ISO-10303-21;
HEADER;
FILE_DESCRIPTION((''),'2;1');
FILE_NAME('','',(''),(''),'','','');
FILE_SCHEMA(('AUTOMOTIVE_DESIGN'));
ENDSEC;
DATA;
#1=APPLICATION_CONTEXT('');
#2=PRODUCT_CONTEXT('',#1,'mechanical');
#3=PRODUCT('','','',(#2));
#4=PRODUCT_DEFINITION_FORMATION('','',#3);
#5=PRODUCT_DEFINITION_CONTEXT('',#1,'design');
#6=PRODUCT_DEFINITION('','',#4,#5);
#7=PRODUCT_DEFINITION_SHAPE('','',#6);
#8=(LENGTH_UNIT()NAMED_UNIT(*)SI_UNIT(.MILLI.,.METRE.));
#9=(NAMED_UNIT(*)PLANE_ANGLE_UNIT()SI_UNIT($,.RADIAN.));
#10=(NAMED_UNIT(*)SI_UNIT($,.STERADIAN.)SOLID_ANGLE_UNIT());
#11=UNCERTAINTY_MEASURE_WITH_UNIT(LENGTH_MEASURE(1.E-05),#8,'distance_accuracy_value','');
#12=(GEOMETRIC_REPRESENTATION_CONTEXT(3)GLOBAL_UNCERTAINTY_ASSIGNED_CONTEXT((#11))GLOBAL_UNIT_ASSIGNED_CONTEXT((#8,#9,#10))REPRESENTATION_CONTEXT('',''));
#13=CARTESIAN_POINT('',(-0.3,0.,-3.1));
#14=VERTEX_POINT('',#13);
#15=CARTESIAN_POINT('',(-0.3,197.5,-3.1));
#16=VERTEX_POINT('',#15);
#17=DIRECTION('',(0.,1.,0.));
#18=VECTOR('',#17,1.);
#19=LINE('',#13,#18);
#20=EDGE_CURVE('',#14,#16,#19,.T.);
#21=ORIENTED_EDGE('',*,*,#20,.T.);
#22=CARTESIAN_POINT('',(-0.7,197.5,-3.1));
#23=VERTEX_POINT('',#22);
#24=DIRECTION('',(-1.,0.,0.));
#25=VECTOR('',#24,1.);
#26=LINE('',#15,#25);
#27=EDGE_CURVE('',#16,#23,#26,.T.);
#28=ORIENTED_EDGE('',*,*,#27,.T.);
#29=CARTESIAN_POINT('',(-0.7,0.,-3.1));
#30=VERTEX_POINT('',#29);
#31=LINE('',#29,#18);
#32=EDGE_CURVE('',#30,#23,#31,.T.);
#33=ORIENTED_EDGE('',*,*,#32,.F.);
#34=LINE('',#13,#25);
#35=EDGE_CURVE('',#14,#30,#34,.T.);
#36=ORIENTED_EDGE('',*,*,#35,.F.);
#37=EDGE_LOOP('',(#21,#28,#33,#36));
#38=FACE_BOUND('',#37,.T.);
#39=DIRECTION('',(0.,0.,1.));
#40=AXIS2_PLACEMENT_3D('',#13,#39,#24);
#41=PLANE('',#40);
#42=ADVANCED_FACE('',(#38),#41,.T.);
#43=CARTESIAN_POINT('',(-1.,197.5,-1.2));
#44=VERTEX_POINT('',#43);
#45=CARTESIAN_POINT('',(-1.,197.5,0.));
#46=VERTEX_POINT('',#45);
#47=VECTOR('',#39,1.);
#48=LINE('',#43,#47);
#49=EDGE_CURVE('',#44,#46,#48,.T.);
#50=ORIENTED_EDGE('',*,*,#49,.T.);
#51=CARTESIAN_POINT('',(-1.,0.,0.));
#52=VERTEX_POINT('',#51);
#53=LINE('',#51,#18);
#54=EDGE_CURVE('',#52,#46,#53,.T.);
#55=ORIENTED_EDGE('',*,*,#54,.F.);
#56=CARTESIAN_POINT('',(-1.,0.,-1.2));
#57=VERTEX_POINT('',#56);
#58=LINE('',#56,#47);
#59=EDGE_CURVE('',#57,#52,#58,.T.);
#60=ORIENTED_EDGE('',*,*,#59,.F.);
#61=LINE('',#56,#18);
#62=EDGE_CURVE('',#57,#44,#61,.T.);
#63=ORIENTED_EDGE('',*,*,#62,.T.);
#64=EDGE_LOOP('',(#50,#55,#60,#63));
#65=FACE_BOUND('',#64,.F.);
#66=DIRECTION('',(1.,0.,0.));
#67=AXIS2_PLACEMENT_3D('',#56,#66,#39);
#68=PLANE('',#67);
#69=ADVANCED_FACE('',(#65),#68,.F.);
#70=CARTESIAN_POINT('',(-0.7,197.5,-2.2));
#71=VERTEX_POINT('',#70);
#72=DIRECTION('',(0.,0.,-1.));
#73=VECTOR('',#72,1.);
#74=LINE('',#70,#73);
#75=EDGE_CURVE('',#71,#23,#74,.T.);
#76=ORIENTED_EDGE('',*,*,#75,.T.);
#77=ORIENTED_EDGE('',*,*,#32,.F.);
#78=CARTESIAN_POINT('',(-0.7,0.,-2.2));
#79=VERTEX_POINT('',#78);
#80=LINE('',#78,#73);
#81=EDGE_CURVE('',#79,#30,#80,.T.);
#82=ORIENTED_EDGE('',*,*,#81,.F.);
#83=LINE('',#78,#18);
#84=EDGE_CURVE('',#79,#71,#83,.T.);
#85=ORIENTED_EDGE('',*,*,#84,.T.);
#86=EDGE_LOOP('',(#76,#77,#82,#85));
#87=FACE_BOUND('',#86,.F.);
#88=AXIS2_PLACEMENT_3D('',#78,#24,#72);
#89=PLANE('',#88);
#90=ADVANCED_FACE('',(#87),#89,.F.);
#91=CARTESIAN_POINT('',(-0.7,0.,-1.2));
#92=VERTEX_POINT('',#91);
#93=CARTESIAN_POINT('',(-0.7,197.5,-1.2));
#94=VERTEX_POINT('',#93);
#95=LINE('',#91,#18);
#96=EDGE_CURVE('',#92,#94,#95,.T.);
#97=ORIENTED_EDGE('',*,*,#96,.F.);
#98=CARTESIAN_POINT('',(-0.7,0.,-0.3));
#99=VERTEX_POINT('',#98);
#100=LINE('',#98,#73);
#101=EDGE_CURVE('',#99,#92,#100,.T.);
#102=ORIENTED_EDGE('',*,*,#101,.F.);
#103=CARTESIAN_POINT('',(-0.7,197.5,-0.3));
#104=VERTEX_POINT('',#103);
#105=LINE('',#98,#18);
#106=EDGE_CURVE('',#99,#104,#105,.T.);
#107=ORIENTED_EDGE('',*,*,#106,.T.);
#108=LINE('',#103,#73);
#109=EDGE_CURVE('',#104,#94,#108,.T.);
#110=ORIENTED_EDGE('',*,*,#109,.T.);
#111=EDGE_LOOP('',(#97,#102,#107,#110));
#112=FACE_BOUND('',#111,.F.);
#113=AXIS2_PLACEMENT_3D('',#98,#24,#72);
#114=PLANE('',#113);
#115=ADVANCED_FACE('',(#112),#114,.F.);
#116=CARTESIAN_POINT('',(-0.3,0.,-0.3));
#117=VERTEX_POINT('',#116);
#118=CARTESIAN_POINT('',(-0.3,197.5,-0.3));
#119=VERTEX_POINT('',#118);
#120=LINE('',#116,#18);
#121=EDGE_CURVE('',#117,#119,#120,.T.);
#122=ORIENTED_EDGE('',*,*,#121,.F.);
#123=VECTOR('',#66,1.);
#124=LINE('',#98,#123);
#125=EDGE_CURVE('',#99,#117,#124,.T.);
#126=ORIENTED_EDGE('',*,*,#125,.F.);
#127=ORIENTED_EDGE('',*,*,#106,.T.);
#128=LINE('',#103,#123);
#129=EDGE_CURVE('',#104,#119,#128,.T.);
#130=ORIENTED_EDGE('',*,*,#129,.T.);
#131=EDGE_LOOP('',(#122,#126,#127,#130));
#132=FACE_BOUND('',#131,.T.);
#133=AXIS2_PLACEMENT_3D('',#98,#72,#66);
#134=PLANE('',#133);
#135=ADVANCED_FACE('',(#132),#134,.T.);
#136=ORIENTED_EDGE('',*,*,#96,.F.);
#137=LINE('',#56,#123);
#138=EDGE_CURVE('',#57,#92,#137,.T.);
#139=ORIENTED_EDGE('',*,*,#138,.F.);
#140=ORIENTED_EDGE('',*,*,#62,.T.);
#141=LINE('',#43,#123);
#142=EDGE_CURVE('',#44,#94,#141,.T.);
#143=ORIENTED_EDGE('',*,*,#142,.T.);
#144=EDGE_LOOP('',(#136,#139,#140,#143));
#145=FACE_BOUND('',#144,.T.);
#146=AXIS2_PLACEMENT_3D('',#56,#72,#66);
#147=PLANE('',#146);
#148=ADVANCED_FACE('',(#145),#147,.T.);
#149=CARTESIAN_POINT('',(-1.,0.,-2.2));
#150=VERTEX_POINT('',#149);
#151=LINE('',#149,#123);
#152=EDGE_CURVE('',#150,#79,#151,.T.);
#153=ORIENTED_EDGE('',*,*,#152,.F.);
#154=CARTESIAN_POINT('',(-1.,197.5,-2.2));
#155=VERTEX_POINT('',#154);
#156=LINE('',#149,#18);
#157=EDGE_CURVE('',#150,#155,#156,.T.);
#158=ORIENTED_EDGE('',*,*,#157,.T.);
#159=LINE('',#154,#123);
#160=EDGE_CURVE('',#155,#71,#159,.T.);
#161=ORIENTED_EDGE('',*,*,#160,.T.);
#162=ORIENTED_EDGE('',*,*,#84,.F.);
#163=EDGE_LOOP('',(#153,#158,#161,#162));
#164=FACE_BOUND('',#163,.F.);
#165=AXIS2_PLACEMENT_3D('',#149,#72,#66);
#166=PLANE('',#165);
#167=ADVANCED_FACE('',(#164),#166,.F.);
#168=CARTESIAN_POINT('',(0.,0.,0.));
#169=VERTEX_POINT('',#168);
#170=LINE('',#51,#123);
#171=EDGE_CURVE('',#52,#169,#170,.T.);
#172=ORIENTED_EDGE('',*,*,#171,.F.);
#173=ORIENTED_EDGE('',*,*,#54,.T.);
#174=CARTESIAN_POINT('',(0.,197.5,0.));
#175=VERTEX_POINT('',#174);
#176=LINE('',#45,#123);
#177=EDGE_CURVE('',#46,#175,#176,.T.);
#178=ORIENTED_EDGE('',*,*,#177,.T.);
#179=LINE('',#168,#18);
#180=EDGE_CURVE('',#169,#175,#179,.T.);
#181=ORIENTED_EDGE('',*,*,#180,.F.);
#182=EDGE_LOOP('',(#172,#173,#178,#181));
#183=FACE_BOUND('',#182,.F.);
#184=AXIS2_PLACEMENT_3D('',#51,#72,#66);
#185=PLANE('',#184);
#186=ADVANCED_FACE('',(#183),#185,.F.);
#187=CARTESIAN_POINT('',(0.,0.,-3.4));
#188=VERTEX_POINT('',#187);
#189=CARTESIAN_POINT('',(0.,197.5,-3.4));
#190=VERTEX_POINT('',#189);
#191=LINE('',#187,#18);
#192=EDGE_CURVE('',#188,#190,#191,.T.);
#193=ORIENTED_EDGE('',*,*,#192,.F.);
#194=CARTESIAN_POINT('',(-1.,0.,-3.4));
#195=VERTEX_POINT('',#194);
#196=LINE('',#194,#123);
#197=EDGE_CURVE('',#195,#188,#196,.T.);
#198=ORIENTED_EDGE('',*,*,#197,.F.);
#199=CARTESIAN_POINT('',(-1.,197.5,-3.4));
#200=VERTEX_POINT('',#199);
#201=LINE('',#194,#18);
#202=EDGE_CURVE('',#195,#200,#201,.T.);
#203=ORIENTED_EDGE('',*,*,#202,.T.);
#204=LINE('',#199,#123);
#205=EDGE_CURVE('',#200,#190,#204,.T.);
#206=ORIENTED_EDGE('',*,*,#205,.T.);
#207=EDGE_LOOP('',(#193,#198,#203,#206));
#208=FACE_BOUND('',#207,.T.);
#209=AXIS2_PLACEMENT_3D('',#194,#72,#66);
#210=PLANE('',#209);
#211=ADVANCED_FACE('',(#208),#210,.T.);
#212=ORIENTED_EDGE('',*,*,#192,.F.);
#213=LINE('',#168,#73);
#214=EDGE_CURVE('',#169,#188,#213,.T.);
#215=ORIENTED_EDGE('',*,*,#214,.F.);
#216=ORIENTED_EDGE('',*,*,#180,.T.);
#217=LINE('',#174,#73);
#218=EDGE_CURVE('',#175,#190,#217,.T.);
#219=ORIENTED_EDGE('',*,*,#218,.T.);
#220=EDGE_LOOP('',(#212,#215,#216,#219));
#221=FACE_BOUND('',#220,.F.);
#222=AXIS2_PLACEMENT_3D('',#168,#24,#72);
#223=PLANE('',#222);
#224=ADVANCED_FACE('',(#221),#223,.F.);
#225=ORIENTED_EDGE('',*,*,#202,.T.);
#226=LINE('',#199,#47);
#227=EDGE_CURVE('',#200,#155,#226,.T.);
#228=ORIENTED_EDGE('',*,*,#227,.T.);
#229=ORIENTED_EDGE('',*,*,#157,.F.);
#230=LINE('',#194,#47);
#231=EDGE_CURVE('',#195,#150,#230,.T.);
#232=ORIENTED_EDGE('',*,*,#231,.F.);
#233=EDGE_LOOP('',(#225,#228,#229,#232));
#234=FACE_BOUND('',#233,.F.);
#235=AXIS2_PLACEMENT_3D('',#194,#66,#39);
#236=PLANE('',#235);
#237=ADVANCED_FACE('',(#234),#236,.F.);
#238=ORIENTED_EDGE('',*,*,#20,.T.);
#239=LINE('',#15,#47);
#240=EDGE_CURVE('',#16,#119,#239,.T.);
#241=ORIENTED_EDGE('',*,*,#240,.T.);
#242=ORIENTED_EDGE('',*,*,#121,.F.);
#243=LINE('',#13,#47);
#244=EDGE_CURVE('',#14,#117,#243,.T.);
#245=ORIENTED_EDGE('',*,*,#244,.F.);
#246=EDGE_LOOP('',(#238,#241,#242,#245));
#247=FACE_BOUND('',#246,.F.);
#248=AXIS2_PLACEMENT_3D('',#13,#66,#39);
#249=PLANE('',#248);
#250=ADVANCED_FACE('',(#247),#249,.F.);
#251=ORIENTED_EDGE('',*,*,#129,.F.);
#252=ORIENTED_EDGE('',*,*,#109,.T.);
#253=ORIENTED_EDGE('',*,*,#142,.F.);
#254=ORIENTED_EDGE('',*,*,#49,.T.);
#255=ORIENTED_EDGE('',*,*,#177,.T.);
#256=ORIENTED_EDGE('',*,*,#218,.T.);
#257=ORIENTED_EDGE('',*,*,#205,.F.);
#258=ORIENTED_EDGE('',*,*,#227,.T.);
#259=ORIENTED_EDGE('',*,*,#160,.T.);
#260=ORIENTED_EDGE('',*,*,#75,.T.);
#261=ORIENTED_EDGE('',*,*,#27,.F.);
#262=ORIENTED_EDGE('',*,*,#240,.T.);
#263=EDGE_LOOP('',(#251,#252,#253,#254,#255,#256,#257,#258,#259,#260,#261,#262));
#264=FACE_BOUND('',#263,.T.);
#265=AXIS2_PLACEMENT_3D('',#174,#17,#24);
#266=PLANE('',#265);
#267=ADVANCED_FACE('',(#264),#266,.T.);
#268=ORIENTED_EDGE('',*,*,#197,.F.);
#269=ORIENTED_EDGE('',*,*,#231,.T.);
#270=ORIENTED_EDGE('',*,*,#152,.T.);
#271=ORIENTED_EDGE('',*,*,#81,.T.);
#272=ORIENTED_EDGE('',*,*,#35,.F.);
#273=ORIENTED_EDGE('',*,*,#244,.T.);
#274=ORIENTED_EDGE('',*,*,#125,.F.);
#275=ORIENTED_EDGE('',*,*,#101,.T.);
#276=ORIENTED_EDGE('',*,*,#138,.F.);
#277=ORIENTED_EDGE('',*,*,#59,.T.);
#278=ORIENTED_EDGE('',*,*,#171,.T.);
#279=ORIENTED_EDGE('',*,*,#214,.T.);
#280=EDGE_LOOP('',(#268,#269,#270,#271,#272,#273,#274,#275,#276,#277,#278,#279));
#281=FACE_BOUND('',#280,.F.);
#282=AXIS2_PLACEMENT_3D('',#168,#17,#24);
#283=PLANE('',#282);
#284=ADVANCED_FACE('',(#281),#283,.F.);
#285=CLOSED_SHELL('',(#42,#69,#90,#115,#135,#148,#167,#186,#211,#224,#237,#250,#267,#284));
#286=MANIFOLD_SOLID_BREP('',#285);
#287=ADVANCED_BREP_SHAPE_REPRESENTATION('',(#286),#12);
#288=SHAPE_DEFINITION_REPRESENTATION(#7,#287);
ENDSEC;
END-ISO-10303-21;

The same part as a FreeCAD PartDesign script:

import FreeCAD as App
import Part
import Sketcher

V = App.Vector
Q = App.Units.Quantity

doc = App.newDocument("Part")
body = doc.addObject("PartDesign::Body", "Body")

sketch1 = doc.addObject("Sketcher::SketchObject", "Sketch")
body.addObject(sketch1)
sketch1.AttachmentSupport = (doc.XZ_Plane, [""])
sketch1.MapMode = "FlatFace"
sketch1.addGeometry(Part.LineSegment(V(-0.7, -1.2, 0), V(-1, -1.2, 0)), False)
sketch1.addGeometry(Part.LineSegment(V(-1, -1.2, 0), V(-1, 0, 0)), False)
sketch1.addGeometry(Part.LineSegment(V(-1, 0, 0), V(0, 0, 0)), False)
sketch1.addGeometry(Part.LineSegment(V(0, 0, 0), V(0, -3.4, 0)), False)
sketch1.addGeometry(Part.LineSegment(V(0, -3.4, 0), V(-1, -3.4, 0)), False)
sketch1.addGeometry(Part.LineSegment(V(-1, -3.4, 0), V(-1, -2.2, 0)), False)
sketch1.addGeometry(Part.LineSegment(V(-1, -2.2, 0), V(-0.7, -2.2, 0)), False)
sketch1.addGeometry(Part.LineSegment(V(-0.7, -2.2, 0), V(-0.7, -3.1, 0)), False)
sketch1.addGeometry(Part.LineSegment(V(-0.7, -3.1, 0), V(-0.3, -3.1, 0)), False)
sketch1.addGeometry(Part.LineSegment(V(-0.3, -3.1, 0), V(-0.3, -0.3, 0)), False)
sketch1.addGeometry(Part.LineSegment(V(-0.3, -0.3, 0), V(-0.7, -0.3, 0)), False)
sketch1.addGeometry(Part.LineSegment(V(-0.7, -0.3, 0), V(-0.7, -1.2, 0)), False)
sketch1.addConstraint(Sketcher.Constraint("Coincident", 0, 2, 1, 1))
sketch1.addConstraint(Sketcher.Constraint("Coincident", 1, 2, 2, 1))
sketch1.addConstraint(Sketcher.Constraint("Coincident", 2, 2, 3, 1))
sketch1.addConstraint(Sketcher.Constraint("Coincident", 3, 2, 4, 1))
sketch1.addConstraint(Sketcher.Constraint("Coincident", 4, 2, 5, 1))
sketch1.addConstraint(Sketcher.Constraint("Coincident", 5, 2, 6, 1))
sketch1.addConstraint(Sketcher.Constraint("Coincident", 6, 2, 7, 1))
sketch1.addConstraint(Sketcher.Constraint("Coincident", 7, 2, 8, 1))
sketch1.addConstraint(Sketcher.Constraint("Coincident", 8, 2, 9, 1))
sketch1.addConstraint(Sketcher.Constraint("Coincident", 9, 2, 10, 1))
sketch1.addConstraint(Sketcher.Constraint("Coincident", 10, 2, 11, 1))
sketch1.addConstraint(Sketcher.Constraint("Coincident", 11, 2, 0, 1))
sketch1.addConstraint(Sketcher.Constraint("Horizontal", 0))
sketch1.addConstraint(Sketcher.Constraint("Vertical", 1))
sketch1.addConstraint(Sketcher.Constraint("Horizontal", 2))
sketch1.addConstraint(Sketcher.Constraint("Vertical", 3))
sketch1.addConstraint(Sketcher.Constraint("Horizontal", 4))
sketch1.addConstraint(Sketcher.Constraint("Vertical", 5))
sketch1.addConstraint(Sketcher.Constraint("Horizontal", 6))
sketch1.addConstraint(Sketcher.Constraint("Vertical", 7))
sketch1.addConstraint(Sketcher.Constraint("Horizontal", 8))
sketch1.addConstraint(Sketcher.Constraint("Vertical", 9))
sketch1.addConstraint(Sketcher.Constraint("Horizontal", 10))
sketch1.addConstraint(Sketcher.Constraint("Vertical", 11))
sketch1.addConstraint(Sketcher.Constraint("Coincident", 2, 2, -1, 1))
sketch1.addConstraint(Sketcher.Constraint("Vertical", 1, 2, 4, 2))
sketch1.addConstraint(Sketcher.Constraint("Vertical", 7, 2, 10, 2))
sketch1.addConstraint(Sketcher.Constraint("Equal", 1, 5))
sketch1.addConstraint(Sketcher.Constraint("Equal", 7, 11))
sketch1.addConstraint(Sketcher.Constraint("DistanceX", 2, 1, 2, 2, Q("1 mm")))
sketch1.addConstraint(Sketcher.Constraint("DistanceX", 0, 2, 0, 1, Q("0.3 mm")))
sketch1.addConstraint(Sketcher.Constraint("DistanceY", 3, 2, 3, 1, Q("3.4 mm")))
sketch1.addConstraint(Sketcher.Constraint("DistanceY", 5, 2, 0, 2, Q("1 mm")))
sketch1.addConstraint(Sketcher.Constraint("DistanceX", 8, 2, -1, 1, Q("0.3 mm")))
sketch1.addConstraint(Sketcher.Constraint("DistanceY", 9, 2, -1, 1, Q("0.3 mm")))
pad1 = doc.addObject("PartDesign::Pad", "Pad")
body.addObject(pad1)
pad1.Profile = sketch1
pad1.Length = 197.5
pad1.Reversed = True

doc.recompute()
